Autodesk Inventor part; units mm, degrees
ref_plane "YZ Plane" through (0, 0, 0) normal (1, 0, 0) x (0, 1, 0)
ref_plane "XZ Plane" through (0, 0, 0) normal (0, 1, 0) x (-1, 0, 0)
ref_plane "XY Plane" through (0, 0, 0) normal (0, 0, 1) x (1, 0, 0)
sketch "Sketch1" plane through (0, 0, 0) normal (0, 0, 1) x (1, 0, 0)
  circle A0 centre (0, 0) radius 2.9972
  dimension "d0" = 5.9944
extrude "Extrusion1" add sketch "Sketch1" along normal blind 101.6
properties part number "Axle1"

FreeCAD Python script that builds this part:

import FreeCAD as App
import Part
import Sketcher
Q = App.Units.Quantity

doc = App.newDocument("Part")
params = doc.addObject("Spreadsheet::Sheet", "Params")
for row, (alias, value) in enumerate([
    ("sketch1_diameter", "0.236 in"),
    ("pad1_length", "4 in"),
], start=1):
    params.set(f"A{row}", alias)
    params.set(f"B{row}", "=" + value)
    params.setAlias(f"B{row}", alias)

body = doc.addObject("PartDesign::Body", "Body")

# Sketch on XY plane
sketch1 = body.newObject("Sketcher::SketchObject", "Sketch")
sketch1.AttachmentSupport = (doc.getObject("XY_Plane"), [""])
sketch1.MapMode = "FlatFace"
sketch1.addGeometry(Part.Circle(App.Vector(0, 0, 0), App.Vector(0, 0, 1), 3), False)
sketch1.addConstraint([
    Sketcher.Constraint("Coincident", 0, 3, -1, 1),
    Sketcher.Constraint("Diameter", 0, Q("0.236 in")),
])
sketch1.setExpression("Constraints[1]", "Params.sketch1_diameter")
pad1 = body.newObject("PartDesign::Pad", "Pad")
pad1.Profile = sketch1
pad1.setExpression("Length", "Params.pad1_length")

doc.recompute()
